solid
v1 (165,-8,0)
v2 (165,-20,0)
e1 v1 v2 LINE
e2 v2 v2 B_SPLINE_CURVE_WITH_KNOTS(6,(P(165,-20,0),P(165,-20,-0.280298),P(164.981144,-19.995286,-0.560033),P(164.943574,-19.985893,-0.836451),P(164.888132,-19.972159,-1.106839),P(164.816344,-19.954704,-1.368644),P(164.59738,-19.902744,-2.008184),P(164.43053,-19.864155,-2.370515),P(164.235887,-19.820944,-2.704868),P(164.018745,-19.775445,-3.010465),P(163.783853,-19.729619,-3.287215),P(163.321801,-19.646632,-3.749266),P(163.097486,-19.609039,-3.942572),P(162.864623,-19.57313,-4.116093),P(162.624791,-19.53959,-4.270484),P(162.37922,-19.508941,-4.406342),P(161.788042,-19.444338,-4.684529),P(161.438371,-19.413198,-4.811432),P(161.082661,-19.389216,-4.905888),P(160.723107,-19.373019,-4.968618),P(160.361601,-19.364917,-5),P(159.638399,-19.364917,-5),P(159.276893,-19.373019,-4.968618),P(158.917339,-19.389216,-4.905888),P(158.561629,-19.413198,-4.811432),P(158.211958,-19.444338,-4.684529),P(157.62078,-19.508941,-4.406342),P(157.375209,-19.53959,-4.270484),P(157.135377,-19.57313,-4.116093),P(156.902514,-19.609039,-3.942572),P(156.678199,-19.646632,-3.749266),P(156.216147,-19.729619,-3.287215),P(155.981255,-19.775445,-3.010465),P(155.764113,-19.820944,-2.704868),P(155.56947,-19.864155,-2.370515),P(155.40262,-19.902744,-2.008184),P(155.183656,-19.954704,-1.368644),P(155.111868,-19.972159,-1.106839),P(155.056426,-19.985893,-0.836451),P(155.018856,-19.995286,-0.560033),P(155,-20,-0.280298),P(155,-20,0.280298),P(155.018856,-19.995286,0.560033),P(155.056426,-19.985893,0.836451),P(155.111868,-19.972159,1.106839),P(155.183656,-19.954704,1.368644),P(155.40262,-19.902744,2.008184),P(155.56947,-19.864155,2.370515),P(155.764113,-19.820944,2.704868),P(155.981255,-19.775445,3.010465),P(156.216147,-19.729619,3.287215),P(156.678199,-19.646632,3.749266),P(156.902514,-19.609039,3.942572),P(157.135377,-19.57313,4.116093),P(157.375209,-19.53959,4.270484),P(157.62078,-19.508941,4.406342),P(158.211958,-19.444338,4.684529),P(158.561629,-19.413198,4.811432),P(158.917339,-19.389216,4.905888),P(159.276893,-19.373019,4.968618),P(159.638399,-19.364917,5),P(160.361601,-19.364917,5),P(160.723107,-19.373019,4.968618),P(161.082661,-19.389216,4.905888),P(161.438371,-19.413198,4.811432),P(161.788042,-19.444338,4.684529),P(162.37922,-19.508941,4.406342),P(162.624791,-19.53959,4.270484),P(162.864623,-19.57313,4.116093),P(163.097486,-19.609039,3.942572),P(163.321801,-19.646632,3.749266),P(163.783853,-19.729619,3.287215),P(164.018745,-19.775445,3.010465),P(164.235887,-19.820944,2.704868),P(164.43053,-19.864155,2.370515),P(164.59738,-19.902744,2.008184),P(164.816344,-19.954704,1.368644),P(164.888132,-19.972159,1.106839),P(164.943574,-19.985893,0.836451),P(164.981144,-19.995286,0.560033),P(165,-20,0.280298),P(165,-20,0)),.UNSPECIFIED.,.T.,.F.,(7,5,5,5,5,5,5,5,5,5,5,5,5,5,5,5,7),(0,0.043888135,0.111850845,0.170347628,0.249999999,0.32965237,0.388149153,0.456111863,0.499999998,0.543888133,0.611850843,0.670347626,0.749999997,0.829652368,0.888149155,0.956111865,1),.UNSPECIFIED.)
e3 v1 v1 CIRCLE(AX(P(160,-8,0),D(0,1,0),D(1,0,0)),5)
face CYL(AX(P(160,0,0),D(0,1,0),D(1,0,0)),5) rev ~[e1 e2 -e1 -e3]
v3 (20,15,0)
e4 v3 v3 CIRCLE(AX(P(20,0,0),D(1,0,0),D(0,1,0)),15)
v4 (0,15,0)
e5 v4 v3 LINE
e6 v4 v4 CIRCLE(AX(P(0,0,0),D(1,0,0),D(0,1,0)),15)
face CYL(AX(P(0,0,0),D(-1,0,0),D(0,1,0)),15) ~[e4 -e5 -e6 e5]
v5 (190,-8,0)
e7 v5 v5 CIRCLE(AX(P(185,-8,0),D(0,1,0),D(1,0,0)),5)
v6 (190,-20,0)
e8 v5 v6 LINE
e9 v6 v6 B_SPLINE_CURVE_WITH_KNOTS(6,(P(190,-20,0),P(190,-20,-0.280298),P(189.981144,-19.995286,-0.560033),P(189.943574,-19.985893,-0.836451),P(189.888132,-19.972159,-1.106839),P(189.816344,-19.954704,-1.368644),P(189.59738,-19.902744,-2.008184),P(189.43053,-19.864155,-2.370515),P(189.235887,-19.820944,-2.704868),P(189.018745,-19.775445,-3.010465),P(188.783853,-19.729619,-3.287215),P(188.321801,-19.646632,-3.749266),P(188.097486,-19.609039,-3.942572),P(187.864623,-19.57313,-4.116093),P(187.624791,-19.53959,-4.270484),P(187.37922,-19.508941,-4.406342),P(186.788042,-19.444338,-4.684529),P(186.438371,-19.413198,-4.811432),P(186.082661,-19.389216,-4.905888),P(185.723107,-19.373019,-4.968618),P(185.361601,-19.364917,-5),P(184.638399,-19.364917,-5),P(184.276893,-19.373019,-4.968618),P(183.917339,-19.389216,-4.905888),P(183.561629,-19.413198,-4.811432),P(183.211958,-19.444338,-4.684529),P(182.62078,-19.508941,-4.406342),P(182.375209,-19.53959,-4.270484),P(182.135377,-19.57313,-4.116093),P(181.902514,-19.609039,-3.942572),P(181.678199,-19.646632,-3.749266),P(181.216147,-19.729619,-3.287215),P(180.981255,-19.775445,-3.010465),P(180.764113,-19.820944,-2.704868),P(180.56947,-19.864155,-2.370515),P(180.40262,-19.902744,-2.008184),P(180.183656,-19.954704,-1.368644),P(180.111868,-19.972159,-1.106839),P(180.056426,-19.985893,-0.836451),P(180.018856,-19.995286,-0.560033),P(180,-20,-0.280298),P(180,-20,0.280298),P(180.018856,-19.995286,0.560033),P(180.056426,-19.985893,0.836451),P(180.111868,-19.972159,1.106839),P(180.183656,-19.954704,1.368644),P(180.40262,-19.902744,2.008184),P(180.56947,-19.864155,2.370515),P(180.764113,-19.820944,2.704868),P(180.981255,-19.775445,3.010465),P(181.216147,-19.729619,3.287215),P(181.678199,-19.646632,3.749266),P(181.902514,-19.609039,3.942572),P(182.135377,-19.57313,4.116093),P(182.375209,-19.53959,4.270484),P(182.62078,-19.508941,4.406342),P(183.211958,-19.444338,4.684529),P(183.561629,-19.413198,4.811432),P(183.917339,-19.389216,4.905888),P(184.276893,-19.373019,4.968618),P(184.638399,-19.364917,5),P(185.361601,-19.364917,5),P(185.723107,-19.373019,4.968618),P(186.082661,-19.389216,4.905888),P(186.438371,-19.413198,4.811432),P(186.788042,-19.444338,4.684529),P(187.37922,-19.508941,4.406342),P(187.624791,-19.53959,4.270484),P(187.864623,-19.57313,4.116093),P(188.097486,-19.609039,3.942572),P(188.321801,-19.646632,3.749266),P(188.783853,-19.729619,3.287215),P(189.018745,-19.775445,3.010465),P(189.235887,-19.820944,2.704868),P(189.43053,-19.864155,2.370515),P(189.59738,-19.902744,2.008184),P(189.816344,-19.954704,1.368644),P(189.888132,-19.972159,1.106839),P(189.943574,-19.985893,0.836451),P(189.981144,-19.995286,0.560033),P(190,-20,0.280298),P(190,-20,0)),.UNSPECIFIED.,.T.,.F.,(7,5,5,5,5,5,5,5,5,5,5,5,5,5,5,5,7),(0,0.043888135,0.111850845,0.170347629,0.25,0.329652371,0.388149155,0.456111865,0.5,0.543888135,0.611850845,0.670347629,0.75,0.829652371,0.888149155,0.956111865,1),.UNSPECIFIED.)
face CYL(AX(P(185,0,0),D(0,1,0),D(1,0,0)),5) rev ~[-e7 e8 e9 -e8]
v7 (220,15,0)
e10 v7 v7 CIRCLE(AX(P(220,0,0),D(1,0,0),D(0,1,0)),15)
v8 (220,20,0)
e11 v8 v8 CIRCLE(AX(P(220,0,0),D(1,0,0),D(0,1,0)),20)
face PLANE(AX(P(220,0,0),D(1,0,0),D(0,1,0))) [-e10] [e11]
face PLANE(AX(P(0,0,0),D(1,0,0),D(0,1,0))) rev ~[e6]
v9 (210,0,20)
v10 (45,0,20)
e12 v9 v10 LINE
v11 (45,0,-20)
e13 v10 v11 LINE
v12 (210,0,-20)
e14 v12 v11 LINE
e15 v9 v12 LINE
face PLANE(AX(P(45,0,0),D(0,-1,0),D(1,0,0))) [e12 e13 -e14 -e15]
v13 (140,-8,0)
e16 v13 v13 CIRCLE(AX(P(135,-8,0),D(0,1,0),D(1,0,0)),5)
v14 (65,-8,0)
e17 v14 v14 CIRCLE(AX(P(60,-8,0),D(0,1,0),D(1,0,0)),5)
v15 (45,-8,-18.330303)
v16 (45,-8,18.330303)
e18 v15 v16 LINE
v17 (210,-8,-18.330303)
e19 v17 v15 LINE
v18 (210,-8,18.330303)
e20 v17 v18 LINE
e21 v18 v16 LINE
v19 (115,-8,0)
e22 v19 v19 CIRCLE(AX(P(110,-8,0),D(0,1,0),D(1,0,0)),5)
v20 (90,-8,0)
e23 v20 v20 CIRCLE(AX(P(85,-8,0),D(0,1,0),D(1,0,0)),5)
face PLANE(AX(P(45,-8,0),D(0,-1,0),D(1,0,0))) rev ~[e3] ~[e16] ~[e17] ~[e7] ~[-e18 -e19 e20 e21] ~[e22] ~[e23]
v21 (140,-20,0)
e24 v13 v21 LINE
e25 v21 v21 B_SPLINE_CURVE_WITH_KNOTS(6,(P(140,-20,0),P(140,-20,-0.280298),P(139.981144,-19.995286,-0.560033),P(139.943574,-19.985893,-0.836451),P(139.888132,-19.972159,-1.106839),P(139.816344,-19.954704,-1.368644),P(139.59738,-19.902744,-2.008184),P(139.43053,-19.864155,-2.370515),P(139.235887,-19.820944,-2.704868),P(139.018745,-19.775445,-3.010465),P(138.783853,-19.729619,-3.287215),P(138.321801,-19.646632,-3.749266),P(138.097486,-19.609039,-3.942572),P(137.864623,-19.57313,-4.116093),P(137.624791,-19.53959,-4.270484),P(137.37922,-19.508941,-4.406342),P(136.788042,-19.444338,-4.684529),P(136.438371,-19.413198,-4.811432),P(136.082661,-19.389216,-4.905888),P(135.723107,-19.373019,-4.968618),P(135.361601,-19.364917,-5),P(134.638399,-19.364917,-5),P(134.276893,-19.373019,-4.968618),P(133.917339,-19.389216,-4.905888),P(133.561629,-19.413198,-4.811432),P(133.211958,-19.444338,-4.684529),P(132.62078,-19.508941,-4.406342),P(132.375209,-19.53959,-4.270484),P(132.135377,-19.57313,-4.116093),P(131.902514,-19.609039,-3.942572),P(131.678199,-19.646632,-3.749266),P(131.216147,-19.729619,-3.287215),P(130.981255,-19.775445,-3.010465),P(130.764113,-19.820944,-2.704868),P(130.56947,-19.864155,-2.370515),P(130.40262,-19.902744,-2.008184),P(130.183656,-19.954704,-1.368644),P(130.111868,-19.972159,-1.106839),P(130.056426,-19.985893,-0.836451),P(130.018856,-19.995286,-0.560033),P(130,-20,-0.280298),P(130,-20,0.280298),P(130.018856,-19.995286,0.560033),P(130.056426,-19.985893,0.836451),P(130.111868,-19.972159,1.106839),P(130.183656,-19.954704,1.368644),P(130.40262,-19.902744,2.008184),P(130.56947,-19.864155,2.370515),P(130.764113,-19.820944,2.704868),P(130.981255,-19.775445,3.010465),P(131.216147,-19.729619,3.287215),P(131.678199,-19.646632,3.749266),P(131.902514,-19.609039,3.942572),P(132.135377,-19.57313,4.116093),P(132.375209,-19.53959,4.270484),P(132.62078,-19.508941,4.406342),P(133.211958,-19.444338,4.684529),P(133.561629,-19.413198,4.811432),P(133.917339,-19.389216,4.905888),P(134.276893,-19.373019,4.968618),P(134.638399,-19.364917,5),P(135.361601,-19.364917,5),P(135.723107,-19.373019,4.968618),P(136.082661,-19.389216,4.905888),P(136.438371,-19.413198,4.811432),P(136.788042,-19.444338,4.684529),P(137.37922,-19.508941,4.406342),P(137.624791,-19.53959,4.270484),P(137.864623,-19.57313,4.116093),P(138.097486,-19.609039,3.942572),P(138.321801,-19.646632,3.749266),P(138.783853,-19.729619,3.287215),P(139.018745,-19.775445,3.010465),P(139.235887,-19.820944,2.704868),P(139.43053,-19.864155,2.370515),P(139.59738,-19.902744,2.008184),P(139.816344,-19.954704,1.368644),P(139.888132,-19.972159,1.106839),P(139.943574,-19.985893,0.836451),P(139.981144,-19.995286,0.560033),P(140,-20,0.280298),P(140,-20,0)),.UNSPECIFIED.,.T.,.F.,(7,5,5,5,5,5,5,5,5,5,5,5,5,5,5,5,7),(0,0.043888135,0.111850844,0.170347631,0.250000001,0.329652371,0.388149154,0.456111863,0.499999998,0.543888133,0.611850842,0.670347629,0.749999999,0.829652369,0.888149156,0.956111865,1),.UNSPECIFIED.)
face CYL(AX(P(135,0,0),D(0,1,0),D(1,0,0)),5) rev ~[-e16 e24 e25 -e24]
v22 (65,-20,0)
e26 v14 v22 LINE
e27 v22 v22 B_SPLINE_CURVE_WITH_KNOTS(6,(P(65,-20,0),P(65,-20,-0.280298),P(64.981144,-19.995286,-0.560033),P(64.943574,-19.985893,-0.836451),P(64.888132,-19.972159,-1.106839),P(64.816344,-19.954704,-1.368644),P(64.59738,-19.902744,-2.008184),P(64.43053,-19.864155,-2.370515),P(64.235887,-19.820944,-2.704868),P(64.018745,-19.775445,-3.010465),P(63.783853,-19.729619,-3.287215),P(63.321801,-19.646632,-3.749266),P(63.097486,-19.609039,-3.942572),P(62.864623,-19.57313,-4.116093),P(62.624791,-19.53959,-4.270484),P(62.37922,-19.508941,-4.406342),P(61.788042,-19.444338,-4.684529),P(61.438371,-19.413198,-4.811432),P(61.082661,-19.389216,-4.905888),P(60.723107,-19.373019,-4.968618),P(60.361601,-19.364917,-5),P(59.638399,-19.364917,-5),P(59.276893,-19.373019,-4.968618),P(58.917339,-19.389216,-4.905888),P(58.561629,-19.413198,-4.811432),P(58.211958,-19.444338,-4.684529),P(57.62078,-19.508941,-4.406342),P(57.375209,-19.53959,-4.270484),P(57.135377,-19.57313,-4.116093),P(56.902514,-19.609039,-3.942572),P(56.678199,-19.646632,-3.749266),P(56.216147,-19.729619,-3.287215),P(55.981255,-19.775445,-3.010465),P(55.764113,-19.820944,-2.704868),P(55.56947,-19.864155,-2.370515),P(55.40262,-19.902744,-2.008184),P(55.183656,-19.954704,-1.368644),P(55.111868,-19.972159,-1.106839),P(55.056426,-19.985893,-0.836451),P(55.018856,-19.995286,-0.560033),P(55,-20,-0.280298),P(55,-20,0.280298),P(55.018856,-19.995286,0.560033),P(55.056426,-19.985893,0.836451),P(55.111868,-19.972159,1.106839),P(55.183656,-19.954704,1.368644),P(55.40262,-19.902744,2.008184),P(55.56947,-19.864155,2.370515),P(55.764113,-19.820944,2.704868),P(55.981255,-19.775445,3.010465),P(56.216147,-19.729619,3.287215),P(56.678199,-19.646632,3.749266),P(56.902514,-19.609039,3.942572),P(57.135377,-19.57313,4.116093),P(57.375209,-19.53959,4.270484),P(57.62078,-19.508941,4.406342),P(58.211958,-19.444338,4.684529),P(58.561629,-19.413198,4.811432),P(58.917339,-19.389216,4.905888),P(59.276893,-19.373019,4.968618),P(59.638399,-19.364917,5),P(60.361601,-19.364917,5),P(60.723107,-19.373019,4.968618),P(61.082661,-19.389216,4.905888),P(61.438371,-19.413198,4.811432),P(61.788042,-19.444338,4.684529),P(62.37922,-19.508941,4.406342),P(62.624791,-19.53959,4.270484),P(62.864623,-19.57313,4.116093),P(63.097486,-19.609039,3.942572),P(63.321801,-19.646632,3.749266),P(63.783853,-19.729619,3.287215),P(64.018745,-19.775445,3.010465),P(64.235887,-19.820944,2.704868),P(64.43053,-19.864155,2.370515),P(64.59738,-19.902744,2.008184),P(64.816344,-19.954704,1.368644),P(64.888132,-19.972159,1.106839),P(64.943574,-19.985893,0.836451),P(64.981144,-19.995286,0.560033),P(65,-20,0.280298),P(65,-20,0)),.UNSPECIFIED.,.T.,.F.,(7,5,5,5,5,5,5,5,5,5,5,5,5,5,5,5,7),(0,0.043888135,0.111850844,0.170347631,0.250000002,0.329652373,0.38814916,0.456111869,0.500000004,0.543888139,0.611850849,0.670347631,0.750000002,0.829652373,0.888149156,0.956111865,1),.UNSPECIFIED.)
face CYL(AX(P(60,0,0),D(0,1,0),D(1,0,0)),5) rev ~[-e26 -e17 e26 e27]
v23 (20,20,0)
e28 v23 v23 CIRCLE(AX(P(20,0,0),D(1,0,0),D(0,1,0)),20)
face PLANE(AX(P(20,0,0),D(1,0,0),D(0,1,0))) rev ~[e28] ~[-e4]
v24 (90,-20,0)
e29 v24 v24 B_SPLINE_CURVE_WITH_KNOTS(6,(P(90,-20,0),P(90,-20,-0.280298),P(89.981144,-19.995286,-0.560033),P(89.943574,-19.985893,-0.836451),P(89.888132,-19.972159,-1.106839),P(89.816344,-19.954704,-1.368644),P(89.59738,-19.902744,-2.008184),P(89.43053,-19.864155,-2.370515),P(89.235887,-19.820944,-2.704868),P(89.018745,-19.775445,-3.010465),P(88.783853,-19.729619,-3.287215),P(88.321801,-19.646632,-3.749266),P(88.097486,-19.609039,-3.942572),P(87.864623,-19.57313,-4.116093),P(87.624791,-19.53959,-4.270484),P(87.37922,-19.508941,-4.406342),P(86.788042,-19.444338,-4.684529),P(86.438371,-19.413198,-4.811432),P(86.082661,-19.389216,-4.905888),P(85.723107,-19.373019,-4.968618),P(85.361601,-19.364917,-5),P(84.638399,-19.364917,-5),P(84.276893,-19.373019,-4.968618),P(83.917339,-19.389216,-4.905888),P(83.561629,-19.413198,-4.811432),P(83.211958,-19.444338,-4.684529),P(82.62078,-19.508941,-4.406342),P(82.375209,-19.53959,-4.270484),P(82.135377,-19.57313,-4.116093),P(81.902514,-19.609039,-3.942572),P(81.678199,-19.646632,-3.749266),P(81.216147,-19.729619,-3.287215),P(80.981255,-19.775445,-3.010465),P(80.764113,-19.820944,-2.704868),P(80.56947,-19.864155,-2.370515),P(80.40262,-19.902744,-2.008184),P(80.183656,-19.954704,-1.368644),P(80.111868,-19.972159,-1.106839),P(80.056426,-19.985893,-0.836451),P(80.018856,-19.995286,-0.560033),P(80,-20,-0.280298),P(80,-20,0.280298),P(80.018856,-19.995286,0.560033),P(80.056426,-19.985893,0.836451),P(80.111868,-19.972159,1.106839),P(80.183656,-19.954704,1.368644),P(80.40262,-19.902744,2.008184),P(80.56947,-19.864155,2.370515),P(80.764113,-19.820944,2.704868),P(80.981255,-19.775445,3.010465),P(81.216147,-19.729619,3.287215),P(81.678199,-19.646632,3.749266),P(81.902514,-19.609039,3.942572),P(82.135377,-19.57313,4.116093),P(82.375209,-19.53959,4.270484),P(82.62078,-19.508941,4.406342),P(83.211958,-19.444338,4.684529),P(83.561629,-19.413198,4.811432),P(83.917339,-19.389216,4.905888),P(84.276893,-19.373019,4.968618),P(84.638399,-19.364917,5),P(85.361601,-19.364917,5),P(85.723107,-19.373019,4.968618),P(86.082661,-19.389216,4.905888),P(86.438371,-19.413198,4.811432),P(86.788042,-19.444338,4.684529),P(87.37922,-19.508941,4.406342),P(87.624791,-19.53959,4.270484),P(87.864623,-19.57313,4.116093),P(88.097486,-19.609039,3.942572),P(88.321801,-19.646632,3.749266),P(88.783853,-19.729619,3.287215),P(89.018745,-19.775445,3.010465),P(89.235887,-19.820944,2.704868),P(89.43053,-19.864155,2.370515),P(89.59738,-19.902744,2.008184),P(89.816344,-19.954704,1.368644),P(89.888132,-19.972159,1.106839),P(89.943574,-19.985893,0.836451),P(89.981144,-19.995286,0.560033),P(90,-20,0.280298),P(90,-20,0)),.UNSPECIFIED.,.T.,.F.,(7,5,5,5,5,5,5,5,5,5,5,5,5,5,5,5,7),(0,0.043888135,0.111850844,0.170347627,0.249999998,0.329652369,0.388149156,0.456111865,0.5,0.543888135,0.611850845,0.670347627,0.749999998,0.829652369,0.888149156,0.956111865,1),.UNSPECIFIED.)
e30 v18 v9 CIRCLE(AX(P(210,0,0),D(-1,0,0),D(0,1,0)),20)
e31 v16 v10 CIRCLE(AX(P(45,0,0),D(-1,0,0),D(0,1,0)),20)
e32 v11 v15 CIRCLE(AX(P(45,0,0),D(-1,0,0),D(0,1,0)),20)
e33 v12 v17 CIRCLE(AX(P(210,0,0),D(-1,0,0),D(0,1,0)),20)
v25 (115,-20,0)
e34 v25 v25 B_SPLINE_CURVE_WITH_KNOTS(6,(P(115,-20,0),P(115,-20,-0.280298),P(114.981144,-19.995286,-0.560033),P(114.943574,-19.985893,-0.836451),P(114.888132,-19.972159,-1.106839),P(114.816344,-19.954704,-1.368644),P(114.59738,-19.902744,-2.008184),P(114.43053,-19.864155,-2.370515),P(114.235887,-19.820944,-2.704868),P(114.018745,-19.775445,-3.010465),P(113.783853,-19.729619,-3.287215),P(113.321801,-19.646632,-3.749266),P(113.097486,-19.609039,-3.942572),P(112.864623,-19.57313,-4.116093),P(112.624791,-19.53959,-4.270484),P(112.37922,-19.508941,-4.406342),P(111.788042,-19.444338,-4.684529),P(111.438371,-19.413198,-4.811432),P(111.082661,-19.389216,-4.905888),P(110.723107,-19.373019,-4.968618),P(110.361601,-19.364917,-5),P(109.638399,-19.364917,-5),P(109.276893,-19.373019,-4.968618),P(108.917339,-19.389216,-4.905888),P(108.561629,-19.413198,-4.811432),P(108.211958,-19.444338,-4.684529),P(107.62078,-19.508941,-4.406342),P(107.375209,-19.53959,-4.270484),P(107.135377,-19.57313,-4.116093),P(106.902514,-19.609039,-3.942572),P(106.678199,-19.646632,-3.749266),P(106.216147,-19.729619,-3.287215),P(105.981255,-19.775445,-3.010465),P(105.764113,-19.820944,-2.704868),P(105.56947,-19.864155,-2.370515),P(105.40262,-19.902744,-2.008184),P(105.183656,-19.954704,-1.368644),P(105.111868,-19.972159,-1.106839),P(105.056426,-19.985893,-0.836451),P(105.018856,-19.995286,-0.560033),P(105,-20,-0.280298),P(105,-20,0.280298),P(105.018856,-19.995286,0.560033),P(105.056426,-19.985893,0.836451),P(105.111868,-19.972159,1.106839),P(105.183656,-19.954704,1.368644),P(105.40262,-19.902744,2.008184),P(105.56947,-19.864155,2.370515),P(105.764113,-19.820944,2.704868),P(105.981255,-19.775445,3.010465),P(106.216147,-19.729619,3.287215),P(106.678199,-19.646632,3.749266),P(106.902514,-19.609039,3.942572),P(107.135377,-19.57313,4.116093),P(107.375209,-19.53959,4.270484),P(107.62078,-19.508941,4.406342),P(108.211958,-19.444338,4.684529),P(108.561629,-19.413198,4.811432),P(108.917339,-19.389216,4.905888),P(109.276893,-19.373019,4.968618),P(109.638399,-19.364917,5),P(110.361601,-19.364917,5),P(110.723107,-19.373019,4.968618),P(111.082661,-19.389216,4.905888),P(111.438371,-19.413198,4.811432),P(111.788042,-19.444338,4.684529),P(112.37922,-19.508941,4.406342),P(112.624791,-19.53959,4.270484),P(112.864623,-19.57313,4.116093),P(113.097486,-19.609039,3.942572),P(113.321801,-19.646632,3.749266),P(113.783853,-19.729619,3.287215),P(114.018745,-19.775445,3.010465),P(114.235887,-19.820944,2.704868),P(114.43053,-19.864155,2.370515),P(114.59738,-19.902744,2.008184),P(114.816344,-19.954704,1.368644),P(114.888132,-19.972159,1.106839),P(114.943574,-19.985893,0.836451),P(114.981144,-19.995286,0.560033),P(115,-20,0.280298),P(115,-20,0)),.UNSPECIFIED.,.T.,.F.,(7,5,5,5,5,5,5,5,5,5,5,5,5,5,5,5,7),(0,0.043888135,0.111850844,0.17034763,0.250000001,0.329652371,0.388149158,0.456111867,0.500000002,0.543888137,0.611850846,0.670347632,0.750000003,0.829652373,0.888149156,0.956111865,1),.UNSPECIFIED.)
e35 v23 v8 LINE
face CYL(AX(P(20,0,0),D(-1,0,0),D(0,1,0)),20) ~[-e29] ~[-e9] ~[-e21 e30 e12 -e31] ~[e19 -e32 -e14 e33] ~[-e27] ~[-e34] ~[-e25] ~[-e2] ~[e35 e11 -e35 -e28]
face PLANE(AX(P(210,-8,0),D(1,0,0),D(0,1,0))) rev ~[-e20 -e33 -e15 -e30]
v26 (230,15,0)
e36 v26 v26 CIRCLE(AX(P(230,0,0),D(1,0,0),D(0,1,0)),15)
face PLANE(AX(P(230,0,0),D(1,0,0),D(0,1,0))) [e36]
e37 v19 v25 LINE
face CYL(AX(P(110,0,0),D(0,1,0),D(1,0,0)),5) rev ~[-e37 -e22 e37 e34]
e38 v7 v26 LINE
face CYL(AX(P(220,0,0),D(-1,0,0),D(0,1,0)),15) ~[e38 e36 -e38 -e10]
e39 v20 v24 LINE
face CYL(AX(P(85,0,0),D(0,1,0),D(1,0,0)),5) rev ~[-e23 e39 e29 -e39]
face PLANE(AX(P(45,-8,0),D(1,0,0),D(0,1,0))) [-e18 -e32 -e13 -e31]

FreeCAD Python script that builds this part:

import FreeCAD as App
import Part
import Sketcher
from FreeCAD import Vector
Q = App.Units.Quantity


def add_polygon(sketch, points):
    """Adds a closed chain of lines whose ends are joined by coincident constraints."""
    first, n = sketch.GeometryCount, len(points)
    for a, b in zip(points, points[1:] + points[:1]):
        sketch.addGeometry(Part.LineSegment(App.Vector(*a, 0), App.Vector(*b, 0)), False)
    for i in range(n):
        sketch.addConstraint(Sketcher.Constraint("Coincident", first + i, 2, first + (i + 1) % n, 1))

doc = App.newDocument("Part")
body = doc.addObject("PartDesign::Body", "Body")

# Sketch on YZ plane
sketch1 = body.newObject("Sketcher::SketchObject", "Sketch")
sketch1.AttachmentSupport = (doc.getObject("YZ_Plane"), [""])
sketch1.MapMode = "FlatFace"
sketch1.addGeometry(Part.Circle(Vector(0, 0, 0), Vector(0, 0, 1), 15), False)
sketch1.addConstraint([
    Sketcher.Constraint("Coincident", 0, 3, -1, 1),
    Sketcher.Constraint("Diameter", 0, Q("30 mm")),
])
pad1 = body.newObject("PartDesign::Pad", "Pad")
pad1.Profile = sketch1
pad1.Length = 20

# Sketch on YZ plane
sketch2 = body.newObject("Sketcher::SketchObject", "Sketch001")
sketch2.AttachmentSupport = (doc.getObject("YZ_Plane"), [""])
sketch2.MapMode = "FlatFace"
sketch2.AttachmentOffset = App.Placement(Vector(0, 0, 20), App.Rotation())
sketch2.addGeometry(Part.Circle(Vector(0, 0, 0), Vector(0, 0, 1), 20), False)
sketch2.addConstraint([
    Sketcher.Constraint("Coincident", 0, 3, -1, 1),
    Sketcher.Constraint("Diameter", 0, Q("40 mm")),
])
pad2 = body.newObject("PartDesign::Pad", "Pad001")
pad2.Profile = sketch2
pad2.Length = 200

# Sketch on XY plane
sketch3 = body.newObject("Sketcher::SketchObject", "Sketch002")
sketch3.AttachmentSupport = (doc.getObject("XY_Plane"), [""])
sketch3.MapMode = "FlatFace"
add_polygon(sketch3, [(45, 0), (45, -8), (210, -8), (210, 0)])  # lines 0-3
sketch3.addConstraint([
    Sketcher.Constraint("Vertical", 0),
    Sketcher.Constraint("Horizontal", 1),
    Sketcher.Constraint("Vertical", 2),
    Sketcher.Constraint("Horizontal", 3),
    Sketcher.Constraint("PointOnObject", 2, 2, -1),
    Sketcher.Constraint("DistanceX", 1, 1, 1, 2, Q("165 mm")),
    Sketcher.Constraint("DistanceY", 0, 2, 0, 1, Q("8 mm")),
    Sketcher.Constraint("DistanceX", -1, 1, 0, 2, Q("45 mm")),
])
pocket1 = body.newObject("PartDesign::Pocket", "Pocket")
pocket1.Profile = sketch3
pocket1.Length = 50
pocket1.Midplane = True

# Sketch on XZ plane
sketch4 = body.newObject("Sketcher::SketchObject", "Sketch003")
sketch4.AttachmentSupport = (doc.getObject("XZ_Plane"), [""])
sketch4.MapMode = "FlatFace"
sketch4.addGeometry([
    Part.Circle(Vector(185, 0, 0), Vector(0, 0, 1), 5),  # 0
    Part.Circle(Vector(60, 0, 0), Vector(0, 0, 1), 5),  # 1
    Part.Circle(Vector(85, 0, 0), Vector(0, 0, 1), 5),  # 2
    Part.Circle(Vector(110, 0, 0), Vector(0, 0, 1), 5),  # 3
    Part.Circle(Vector(135, 0, 0), Vector(0, 0, 1), 5),  # 4
    Part.Circle(Vector(160, 0, 0), Vector(0, 0, 1), 5),  # 5
], False)
sketch4.addConstraint([
    Sketcher.Constraint("Equal", 0, 1),
    Sketcher.Constraint("Equal", 1, 2),
    Sketcher.Constraint("Equal", 2, 3),
    Sketcher.Constraint("Equal", 3, 4),
    Sketcher.Constraint("Equal", 4, 5),
    Sketcher.Constraint("PointOnObject", 0, 3, -1),
    Sketcher.Constraint("PointOnObject", 1, 3, -1),
    Sketcher.Constraint("PointOnObject", 2, 3, -1),
    Sketcher.Constraint("PointOnObject", 3, 3, -1),
    Sketcher.Constraint("PointOnObject", 4, 3, -1),
    Sketcher.Constraint("PointOnObject", 5, 3, -1),
    Sketcher.Constraint("Diameter", 0, Q("10 mm")),
    Sketcher.Constraint("DistanceX", -1, 1, 0, 3, Q("185 mm")),
    Sketcher.Constraint("DistanceX", -1, 1, 1, 3, Q("60 mm")),
    Sketcher.Constraint("DistanceX", -1, 1, 2, 3, Q("85 mm")),
    Sketcher.Constraint("DistanceX", -1, 1, 3, 3, Q("110 mm")),
    Sketcher.Constraint("DistanceX", -1, 1, 4, 3, Q("135 mm")),
    Sketcher.Constraint("DistanceX", -1, 1, 5, 3, Q("160 mm")),
])
pocket2 = body.newObject("PartDesign::Pocket", "Pocket001")
pocket2.Profile = sketch4
pocket2.Type = "ThroughAll"
pocket2.Reversed = True

# Sketch on YZ plane
sketch5 = body.newObject("Sketcher::SketchObject", "Sketch004")
sketch5.AttachmentSupport = (doc.getObject("YZ_Plane"), [""])
sketch5.MapMode = "FlatFace"
sketch5.AttachmentOffset = App.Placement(Vector(0, 0, 220), App.Rotation())
sketch5.addGeometry(Part.Circle(Vector(0, 0, 0), Vector(0, 0, 1), 15), False)
sketch5.addConstraint([
    Sketcher.Constraint("Coincident", 0, 3, -1, 1),
    Sketcher.Constraint("Diameter", 0, Q("30 mm")),
])
pad3 = body.newObject("PartDesign::Pad", "Pad002")
pad3.Profile = sketch5
pad3.Length = 10

doc.recompute()
